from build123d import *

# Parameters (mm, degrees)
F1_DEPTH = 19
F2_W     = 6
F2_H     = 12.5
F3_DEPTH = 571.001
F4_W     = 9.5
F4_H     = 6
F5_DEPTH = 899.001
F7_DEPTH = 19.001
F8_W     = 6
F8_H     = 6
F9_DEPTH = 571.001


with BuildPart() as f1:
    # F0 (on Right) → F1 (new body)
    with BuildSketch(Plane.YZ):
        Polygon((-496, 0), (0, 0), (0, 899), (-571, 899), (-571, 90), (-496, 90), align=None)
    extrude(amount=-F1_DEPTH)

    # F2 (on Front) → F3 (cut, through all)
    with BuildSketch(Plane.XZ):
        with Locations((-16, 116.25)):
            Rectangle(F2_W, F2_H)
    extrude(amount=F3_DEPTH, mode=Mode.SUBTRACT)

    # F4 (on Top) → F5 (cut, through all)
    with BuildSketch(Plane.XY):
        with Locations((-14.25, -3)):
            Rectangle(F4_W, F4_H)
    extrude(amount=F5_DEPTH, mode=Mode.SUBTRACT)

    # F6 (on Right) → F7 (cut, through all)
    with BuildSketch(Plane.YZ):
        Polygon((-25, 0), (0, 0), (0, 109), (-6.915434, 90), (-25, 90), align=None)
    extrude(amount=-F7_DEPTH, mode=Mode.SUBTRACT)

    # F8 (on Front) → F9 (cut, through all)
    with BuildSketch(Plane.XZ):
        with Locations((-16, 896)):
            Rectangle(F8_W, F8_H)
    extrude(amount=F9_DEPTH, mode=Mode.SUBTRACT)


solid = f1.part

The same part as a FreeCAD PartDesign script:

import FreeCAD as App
import Part
import Sketcher
Q = App.Units.Quantity

doc = App.newDocument("Part")
body = doc.addObject("PartDesign::Body", "Body")

# Sketch on YZ plane
sketch1 = body.newObject("Sketcher::SketchObject", "Sketch")
sketch1.AttachmentSupport = (doc.getObject("YZ_Plane"), [""])
sketch1.MapMode = "FlatFace"
sketch1.addGeometry([
    Part.LineSegment(App.Vector(-496, 0, 0), App.Vector(0, 0, 0)),  # 0
    Part.LineSegment(App.Vector(0, 0, 0), App.Vector(0, 899, 0)),  # 1
    Part.LineSegment(App.Vector(0, 899, 0), App.Vector(-571, 899, 0)),  # 2
    Part.LineSegment(App.Vector(-571, 899, 0), App.Vector(-571, 90, 0)),  # 3
    Part.LineSegment(App.Vector(-571, 90, 0), App.Vector(-496, 90, 0)),  # 4
    Part.LineSegment(App.Vector(-496, 90, 0), App.Vector(-496, 0, 0)),  # 5
], False)
sketch1.addConstraint([
    Sketcher.Constraint("Coincident", 0, 2, 1, 1),
    Sketcher.Constraint("Coincident", 1, 2, 2, 1),
    Sketcher.Constraint("Coincident", 2, 2, 3, 1),
    Sketcher.Constraint("Coincident", 3, 2, 4, 1),
    Sketcher.Constraint("Coincident", 4, 2, 5, 1),
    Sketcher.Constraint("Coincident", 5, 2, 0, 1),
    Sketcher.Constraint("Horizontal", 0),
    Sketcher.Constraint("Vertical", 1),
    Sketcher.Constraint("Horizontal", 2),
    Sketcher.Constraint("Vertical", 3),
    Sketcher.Constraint("Horizontal", 4),
    Sketcher.Constraint("Vertical", 5),
    Sketcher.Constraint("Coincident", 0, 2, -1, 1),
    Sketcher.Constraint("DistanceX", 0, 1, 0, 2, 496.0),
    Sketcher.Constraint("DistanceX", 2, 2, 2, 1, 571.0),
    Sketcher.Constraint("DistanceY", 1, 1, 1, 2, 899.0),
    Sketcher.Constraint("DistanceY", 3, 2, 3, 1, 809.0),
])
pad1 = body.newObject("PartDesign::Pad", "Pad")
pad1.Profile = sketch1
pad1.Length = 19
pad1.Reversed = True

# Sketch on XZ plane
sketch2 = body.newObject("Sketcher::SketchObject", "Sketch001")
sketch2.AttachmentSupport = (doc.getObject("XZ_Plane"), [""])
sketch2.MapMode = "FlatFace"
sketch2.addGeometry([
    Part.LineSegment(App.Vector(-19, 122, 0), App.Vector(-19, 110, 0)),
    Part.LineSegment(App.Vector(-19, 110, 0), App.Vector(-13, 110, 0)),
    Part.LineSegment(App.Vector(-13, 110, 0), App.Vector(-13, 122, 0)),
    Part.LineSegment(App.Vector(-13, 122, 0), App.Vector(-19, 122, 0)),
], False)
sketch2.addConstraint([
    Sketcher.Constraint("Coincident", 0, 2, 1, 1),
    Sketcher.Constraint("Coincident", 1, 2, 2, 1),
    Sketcher.Constraint("Coincident", 2, 2, 3, 1),
    Sketcher.Constraint("Coincident", 3, 2, 0, 1),
    Sketcher.Constraint("Vertical", 0),
    Sketcher.Constraint("Horizontal", 1),
    Sketcher.Constraint("Vertical", 2),
    Sketcher.Constraint("Horizontal", 3),
    Sketcher.Constraint("DistanceX", 1, 1, 1, 2, 6.0),
    Sketcher.Constraint("DistanceY", 0, 2, 0, 1, 12.5),
    Sketcher.Constraint("DistanceX", 0, 2, -1, 1, 19.0),
    Sketcher.Constraint("DistanceY", -1, 1, 0, 2, 110.0),
])
pocket1 = body.newObject("PartDesign::Pocket", "Pocket")
pocket1.Profile = sketch2
pocket1.Type = "ThroughAll"
pocket1.Reversed = True

# Sketch on XY plane
sketch3 = body.newObject("Sketcher::SketchObject", "Sketch002")
sketch3.AttachmentSupport = (doc.getObject("XY_Plane"), [""])
sketch3.MapMode = "FlatFace"
sketch3.addGeometry([
    Part.LineSegment(App.Vector(-19, 0, 0), App.Vector(-19, -6, 0)),
    Part.LineSegment(App.Vector(-19, -6, 0), App.Vector(-10, -6, 0)),
    Part.LineSegment(App.Vector(-10, -6, 0), App.Vector(-10, 0, 0)),
    Part.LineSegment(App.Vector(-10, 0, 0), App.Vector(-19, 0, 0)),
], False)
sketch3.addConstraint([
    Sketcher.Constraint("Coincident", 0, 2, 1, 1),
    Sketcher.Constraint("Coincident", 1, 2, 2, 1),
    Sketcher.Constraint("Coincident", 2, 2, 3, 1),
    Sketcher.Constraint("Coincident", 3, 2, 0, 1),
    Sketcher.Constraint("Vertical", 0),
    Sketcher.Constraint("Horizontal", 1),
    Sketcher.Constraint("Vertical", 2),
    Sketcher.Constraint("Horizontal", 3),
    Sketcher.Constraint("PointOnObject", 2, 2, -1),
    Sketcher.Constraint("DistanceY", 0, 2, 0, 1, 6.0),
    Sketcher.Constraint("DistanceX", 1, 1, 1, 2, 9.5),
    Sketcher.Constraint("DistanceX", 0, 2, -1, 1, 19.0),
])
pocket2 = body.newObject("PartDesign::Pocket", "Pocket001")
pocket2.Profile = sketch3
pocket2.Type = "ThroughAll"
pocket2.Reversed = True

# Sketch on YZ plane
sketch4 = body.newObject("Sketcher::SketchObject", "Sketch003")
sketch4.AttachmentSupport = (doc.getObject("YZ_Plane"), [""])
sketch4.MapMode = "FlatFace"
sketch4.addGeometry([
    Part.LineSegment(App.Vector(-25, 0, 0), App.Vector(0, 0, 0)),  # 0
    Part.LineSegment(App.Vector(0, 0, 0), App.Vector(0, 109, 0)),  # 1
    Part.LineSegment(App.Vector(0, 109, 0), App.Vector(-7, 90, 0)),  # 2
    Part.LineSegment(App.Vector(-7, 90, 0), App.Vector(-25, 90, 0)),  # 3
    Part.LineSegment(App.Vector(-25, 90, 0), App.Vector(-25, 0, 0)),  # 4
], False)
sketch4.addConstraint([
    Sketcher.Constraint("Coincident", 0, 2, 1, 1),
    Sketcher.Constraint("Coincident", 1, 2, 2, 1),
    Sketcher.Constraint("Coincident", 2, 2, 3, 1),
    Sketcher.Constraint("Coincident", 3, 2, 4, 1),
    Sketcher.Constraint("Coincident", 4, 2, 0, 1),
    Sketcher.Constraint("Horizontal", 0),
    Sketcher.Constraint("Vertical", 1),
    Sketcher.Constraint("Horizontal", 3),
    Sketcher.Constraint("Vertical", 4),
    Sketcher.Constraint("Coincident", 0, 2, -1, 1),
    Sketcher.Constraint("DistanceX", 0, 1, 0, 2, 25.0),
    Sketcher.Constraint("DistanceY", 1, 1, 1, 2, 109.0),
    Sketcher.Constraint("DistanceY", 4, 2, 4, 1, 90.0),
    Sketcher.Constraint("Angle", 2, Q("-109.999999 deg")),
])
pocket3 = body.newObject("PartDesign::Pocket", "Pocket002")
pocket3.Profile = sketch4
pocket3.Type = "ThroughAll"

# Sketch on XZ plane
sketch5 = body.newObject("Sketcher::SketchObject", "Sketch004")
sketch5.AttachmentSupport = (doc.getObject("XZ_Plane"), [""])
sketch5.MapMode = "FlatFace"
sketch5.addGeometry([
    Part.LineSegment(App.Vector(-19, 899, 0), App.Vector(-19, 893, 0)),
    Part.LineSegment(App.Vector(-19, 893, 0), App.Vector(-13, 893, 0)),
    Part.LineSegment(App.Vector(-13, 893, 0), App.Vector(-13, 899, 0)),
    Part.LineSegment(App.Vector(-13, 899, 0), App.Vector(-19, 899, 0)),
], False)
sketch5.addConstraint([
    Sketcher.Constraint("Coincident", 0, 2, 1, 1),
    Sketcher.Constraint("Coincident", 1, 2, 2, 1),
    Sketcher.Constraint("Coincident", 2, 2, 3, 1),
    Sketcher.Constraint("Coincident", 3, 2, 0, 1),
    Sketcher.Constraint("Vertical", 0),
    Sketcher.Constraint("Horizontal", 1),
    Sketcher.Constraint("Vertical", 2),
    Sketcher.Constraint("Horizontal", 3),
    Sketcher.Constraint("Equal", 3, 0),
    Sketcher.Constraint("DistanceX", 1, 1, 1, 2, 6.0),
    Sketcher.Constraint("DistanceX", 0, 2, -1, 1, 19.0),
    Sketcher.Constraint("DistanceY", -1, 1, 0, 2, 893.0),
])
pocket4 = body.newObject("PartDesign::Pocket", "Pocket003")
pocket4.Profile = sketch5
pocket4.Type = "ThroughAll"
pocket4.Reversed = True

doc.recompute()
